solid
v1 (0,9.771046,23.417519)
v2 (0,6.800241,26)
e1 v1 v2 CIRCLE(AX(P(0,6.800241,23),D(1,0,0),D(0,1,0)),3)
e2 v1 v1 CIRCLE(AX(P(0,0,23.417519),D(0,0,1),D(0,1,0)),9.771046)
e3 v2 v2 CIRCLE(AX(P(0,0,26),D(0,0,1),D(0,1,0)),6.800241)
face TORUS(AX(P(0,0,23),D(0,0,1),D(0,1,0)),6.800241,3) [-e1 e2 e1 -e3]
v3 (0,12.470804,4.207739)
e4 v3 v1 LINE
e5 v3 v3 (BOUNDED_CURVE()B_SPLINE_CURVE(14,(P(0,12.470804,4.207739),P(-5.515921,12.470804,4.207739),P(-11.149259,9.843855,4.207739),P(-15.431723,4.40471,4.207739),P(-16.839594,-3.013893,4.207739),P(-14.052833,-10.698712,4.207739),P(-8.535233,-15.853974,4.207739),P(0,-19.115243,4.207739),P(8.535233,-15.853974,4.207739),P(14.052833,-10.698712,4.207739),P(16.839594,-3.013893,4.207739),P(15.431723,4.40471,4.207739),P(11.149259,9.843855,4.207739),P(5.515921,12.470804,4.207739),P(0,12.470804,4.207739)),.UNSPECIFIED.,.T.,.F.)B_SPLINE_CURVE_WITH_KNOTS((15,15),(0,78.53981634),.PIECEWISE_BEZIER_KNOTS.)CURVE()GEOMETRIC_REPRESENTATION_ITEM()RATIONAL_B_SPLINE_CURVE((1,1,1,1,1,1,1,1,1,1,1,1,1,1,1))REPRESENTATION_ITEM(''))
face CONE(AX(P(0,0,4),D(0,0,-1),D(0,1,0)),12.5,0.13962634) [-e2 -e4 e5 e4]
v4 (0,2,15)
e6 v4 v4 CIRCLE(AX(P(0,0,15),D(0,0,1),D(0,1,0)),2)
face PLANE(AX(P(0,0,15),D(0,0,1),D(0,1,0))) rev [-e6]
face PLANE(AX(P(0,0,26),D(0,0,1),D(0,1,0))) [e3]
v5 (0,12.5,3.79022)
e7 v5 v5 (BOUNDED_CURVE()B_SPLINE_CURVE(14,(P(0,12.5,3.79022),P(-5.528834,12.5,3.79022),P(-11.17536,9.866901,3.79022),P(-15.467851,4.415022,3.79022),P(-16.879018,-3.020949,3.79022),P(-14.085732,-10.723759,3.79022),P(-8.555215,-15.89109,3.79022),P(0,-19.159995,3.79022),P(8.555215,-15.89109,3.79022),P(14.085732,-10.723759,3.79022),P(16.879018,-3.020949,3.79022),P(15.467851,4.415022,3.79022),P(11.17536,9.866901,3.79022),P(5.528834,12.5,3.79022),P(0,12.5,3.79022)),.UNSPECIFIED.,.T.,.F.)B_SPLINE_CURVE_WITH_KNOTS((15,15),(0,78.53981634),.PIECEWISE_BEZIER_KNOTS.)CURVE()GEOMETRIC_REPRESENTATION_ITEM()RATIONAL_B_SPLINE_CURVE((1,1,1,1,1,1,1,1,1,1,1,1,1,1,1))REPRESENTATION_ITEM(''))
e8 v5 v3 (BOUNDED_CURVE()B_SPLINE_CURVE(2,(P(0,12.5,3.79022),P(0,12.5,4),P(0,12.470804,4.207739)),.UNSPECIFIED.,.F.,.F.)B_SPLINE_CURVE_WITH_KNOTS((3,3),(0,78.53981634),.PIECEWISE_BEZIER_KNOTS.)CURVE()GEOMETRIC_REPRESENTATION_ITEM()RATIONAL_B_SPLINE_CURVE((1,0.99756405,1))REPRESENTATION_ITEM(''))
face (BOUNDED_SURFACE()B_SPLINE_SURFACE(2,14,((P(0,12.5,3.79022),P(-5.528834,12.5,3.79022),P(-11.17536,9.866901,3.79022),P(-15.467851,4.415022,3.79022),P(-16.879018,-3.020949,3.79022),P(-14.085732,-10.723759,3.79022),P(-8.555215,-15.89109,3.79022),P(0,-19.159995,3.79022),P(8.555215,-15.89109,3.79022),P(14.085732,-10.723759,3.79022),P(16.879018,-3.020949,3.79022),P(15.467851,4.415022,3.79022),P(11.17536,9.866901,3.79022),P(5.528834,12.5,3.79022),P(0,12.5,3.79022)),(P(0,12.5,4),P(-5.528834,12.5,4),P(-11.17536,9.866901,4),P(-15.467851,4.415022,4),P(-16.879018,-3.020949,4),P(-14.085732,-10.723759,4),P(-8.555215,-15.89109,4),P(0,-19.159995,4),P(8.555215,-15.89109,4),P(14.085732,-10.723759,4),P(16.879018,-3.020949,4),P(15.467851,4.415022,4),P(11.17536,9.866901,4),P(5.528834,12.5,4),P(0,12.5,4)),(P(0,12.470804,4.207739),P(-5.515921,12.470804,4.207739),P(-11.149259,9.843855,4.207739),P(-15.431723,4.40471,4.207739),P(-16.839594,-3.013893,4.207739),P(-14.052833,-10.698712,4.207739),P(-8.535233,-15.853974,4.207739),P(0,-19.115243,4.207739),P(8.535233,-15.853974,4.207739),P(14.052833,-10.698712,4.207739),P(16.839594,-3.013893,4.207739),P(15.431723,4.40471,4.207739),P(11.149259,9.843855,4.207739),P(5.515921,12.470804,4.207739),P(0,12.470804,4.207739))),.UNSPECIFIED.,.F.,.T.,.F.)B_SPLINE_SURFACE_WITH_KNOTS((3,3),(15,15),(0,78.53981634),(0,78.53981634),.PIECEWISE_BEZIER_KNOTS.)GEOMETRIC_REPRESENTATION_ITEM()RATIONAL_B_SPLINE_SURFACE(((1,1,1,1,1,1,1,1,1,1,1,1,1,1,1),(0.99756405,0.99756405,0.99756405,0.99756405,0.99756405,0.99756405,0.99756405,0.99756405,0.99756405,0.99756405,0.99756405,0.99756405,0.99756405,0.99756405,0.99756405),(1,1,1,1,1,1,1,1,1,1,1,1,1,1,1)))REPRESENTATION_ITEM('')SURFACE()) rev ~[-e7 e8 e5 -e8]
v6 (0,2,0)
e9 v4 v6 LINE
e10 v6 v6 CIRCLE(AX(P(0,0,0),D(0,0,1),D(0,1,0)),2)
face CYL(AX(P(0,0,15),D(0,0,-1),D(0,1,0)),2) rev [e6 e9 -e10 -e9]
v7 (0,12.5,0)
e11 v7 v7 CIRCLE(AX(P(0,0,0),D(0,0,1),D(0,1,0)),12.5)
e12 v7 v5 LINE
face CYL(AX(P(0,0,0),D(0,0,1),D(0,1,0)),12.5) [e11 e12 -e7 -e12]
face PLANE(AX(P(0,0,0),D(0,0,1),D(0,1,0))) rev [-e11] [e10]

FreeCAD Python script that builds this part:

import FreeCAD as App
import Part
import Sketcher

V = App.Vector
Q = App.Units.Quantity


def edges_at(feature, points):
    """Names of the edges that pass closest to the given points."""
    edges = feature.Shape.Edges
    near = lambda p: min(range(len(edges)), key=lambda i: edges[i].distToShape(Part.Vertex(*p))[0])
    return sorted({f"Edge{near(p) + 1}" for p in points})


def add_polygon(sketch, points):
    """Adds a closed chain of lines whose ends are joined by coincident constraints."""
    first, n = sketch.GeometryCount, len(points)
    for a, b in zip(points, points[1:] + points[:1]):
        sketch.addGeometry(Part.LineSegment(App.Vector(*a, 0), App.Vector(*b, 0)), False)
    for i in range(n):
        sketch.addConstraint(Sketcher.Constraint("Coincident", first + i, 2, first + (i + 1) % n, 1))

doc = App.newDocument("Part")
body = doc.addObject("PartDesign::Body", "Body")

# Sketch on YZ plane
sketch1 = body.newObject("Sketcher::SketchObject", "Sketch")
sketch1.AttachmentSupport = (doc.getObject("YZ_Plane"), [""])
sketch1.MapMode = "FlatFace"
add_polygon(sketch1, [(0, 26), (0, 15), (2, 15), (2, 0), (12.5, 0), (12.5, 4), (9.4, 26)])  # lines 0-6
sketch1.addConstraint([
    Sketcher.Constraint("Vertical", 0),
    Sketcher.Constraint("Horizontal", 1),
    Sketcher.Constraint("Vertical", 2),
    Sketcher.Constraint("Horizontal", 3),
    Sketcher.Constraint("Vertical", 4),
    Sketcher.Constraint("Horizontal", 6),
    Sketcher.Constraint("PointOnObject", 0, 2, -2),
    Sketcher.Constraint("PointOnObject", 2, 2, -1),
    Sketcher.Constraint("DistanceX", 1, 1, 1, 2, 2.0),
    Sketcher.Constraint("DistanceY", 0, 2, 0, 1, 11.0),
    Sketcher.Constraint("DistanceY", 2, 2, 2, 1, 15.0),
    Sketcher.Constraint("DistanceY", 4, 1, 4, 2, 4.0),
    Sketcher.Constraint("Angle", 5, Q("98 deg")),
    Sketcher.Constraint("DistanceX", 3, 1, 3, 2, 10.5),
])
revolution = body.newObject("PartDesign::Revolution", "Revolution")
revolution.Profile = sketch1
revolution.ReferenceAxis = (sketch1, ["V_Axis"])
revolution.Angle = 360
doc.recompute()

fillet = body.newObject("PartDesign::Fillet", "Fillet")
fillet.Base = (revolution, edges_at(revolution, [(0, -9.408, 26), (0, -12.5, 4)]))
fillet.Radius = 3

doc.recompute()
